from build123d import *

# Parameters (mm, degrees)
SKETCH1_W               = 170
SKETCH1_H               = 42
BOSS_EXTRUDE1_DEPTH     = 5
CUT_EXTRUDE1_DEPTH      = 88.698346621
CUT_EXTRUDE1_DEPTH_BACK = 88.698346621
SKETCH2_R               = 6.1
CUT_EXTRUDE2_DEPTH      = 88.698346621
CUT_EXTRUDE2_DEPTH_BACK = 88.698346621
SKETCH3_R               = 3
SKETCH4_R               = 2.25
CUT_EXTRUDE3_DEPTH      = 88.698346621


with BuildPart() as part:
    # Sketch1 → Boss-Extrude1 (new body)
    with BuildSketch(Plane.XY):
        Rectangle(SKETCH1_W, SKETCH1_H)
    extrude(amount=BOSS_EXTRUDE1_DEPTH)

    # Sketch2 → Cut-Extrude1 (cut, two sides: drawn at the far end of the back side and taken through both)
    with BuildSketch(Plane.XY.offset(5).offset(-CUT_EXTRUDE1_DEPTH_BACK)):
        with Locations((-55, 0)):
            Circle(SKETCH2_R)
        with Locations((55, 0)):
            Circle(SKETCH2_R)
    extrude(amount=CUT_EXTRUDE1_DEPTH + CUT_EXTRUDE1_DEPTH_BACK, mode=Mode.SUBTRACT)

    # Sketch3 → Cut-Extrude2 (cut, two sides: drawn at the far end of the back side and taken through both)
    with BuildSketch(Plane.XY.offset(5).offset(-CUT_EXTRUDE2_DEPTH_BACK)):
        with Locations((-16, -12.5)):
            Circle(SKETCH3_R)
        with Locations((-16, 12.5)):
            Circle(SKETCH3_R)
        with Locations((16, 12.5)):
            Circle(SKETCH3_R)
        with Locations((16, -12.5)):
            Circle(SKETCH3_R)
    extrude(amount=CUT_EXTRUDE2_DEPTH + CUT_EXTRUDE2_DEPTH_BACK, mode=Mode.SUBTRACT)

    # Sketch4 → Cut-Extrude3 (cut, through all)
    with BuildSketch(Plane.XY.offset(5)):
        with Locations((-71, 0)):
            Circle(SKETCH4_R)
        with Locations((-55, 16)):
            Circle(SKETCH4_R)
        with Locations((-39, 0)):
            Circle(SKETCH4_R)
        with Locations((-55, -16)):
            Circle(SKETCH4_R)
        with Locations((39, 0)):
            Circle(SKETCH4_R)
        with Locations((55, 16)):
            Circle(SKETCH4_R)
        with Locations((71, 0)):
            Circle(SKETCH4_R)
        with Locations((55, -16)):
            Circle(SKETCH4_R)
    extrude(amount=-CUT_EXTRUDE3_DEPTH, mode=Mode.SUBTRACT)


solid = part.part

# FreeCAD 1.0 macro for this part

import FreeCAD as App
import Part
import Sketcher
from FreeCAD import Vector

doc = App.newDocument("Part")
body = doc.addObject("PartDesign::Body", "Body")

# Sketch on XY plane
sketch1 = doc.addObject("Sketcher::SketchObject", "Sketch")
body.addObject(sketch1)
sketch1.AttachmentSupport = (doc.XY_Plane, [""])
sketch1.MapMode = "FlatFace"
sketch1.addGeometry(Part.LineSegment(Vector(-85, 21, 0), Vector(-85, -21, 0)), False)
sketch1.addGeometry(Part.LineSegment(Vector(-85, -21, 0), Vector(85, -21, 0)), False)
sketch1.addGeometry(Part.LineSegment(Vector(85, -21, 0), Vector(85, 21, 0)), False)
sketch1.addGeometry(Part.LineSegment(Vector(85, 21, 0), Vector(-85, 21, 0)), False)
sketch1.addConstraint(Sketcher.Constraint("Coincident", 0, 2, 1, 1))
sketch1.addConstraint(Sketcher.Constraint("Coincident", 1, 2, 2, 1))
sketch1.addConstraint(Sketcher.Constraint("Coincident", 2, 2, 3, 1))
sketch1.addConstraint(Sketcher.Constraint("Coincident", 3, 2, 0, 1))
sketch1.addConstraint(Sketcher.Constraint("Vertical", 0))
sketch1.addConstraint(Sketcher.Constraint("Horizontal", 1))
sketch1.addConstraint(Sketcher.Constraint("Vertical", 2))
sketch1.addConstraint(Sketcher.Constraint("Horizontal", 3))
sketch1.addConstraint(Sketcher.Constraint("Symmetric", 0, 2, 2, 2, -1, 1))
sketch1.addConstraint(Sketcher.Constraint("DistanceX", 1, 1, 1, 2, 170.0))
sketch1.addConstraint(Sketcher.Constraint("DistanceY", 0, 2, 0, 1, 42.0))
pad1 = doc.addObject("PartDesign::Pad", "Pad")
body.addObject(pad1)
pad1.Profile = sketch1
pad1.Length = 5

# Sketch on XY plane
sketch2 = doc.addObject("Sketcher::SketchObject", "Sketch001")
body.addObject(sketch2)
sketch2.AttachmentSupport = (doc.XY_Plane, [""])
sketch2.MapMode = "FlatFace"
sketch2.AttachmentOffset = App.Placement(Vector(0, 0, 5), App.Rotation())
sketch2.addGeometry(Part.Circle(Vector(-55, 0, 0), Vector(0, 0, 1), 6.1), False)
sketch2.addGeometry(Part.Circle(Vector(55, 0, 0), Vector(0, 0, 1), 6.1), False)
sketch2.addConstraint(Sketcher.Constraint("Equal", 0, 1))
sketch2.addConstraint(Sketcher.Constraint("Symmetric", 0, 3, 1, 3, -1, 1))
sketch2.addConstraint(Sketcher.Constraint("PointOnObject", 0, 3, -1))
sketch2.addConstraint(Sketcher.Constraint("Diameter", 0, 12.2))
sketch2.addConstraint(Sketcher.Constraint("DistanceX", 0, 3, -1, 1, 55.0))
pocket1 = doc.addObject("PartDesign::Pocket", "Pocket")
body.addObject(pocket1)
pocket1.Profile = sketch2
pocket1.Type = "ThroughAll"
pocket1.Midplane = True

# Sketch on XY plane
sketch3 = doc.addObject("Sketcher::SketchObject", "Sketch002")
body.addObject(sketch3)
sketch3.AttachmentSupport = (doc.XY_Plane, [""])
sketch3.MapMode = "FlatFace"
sketch3.AttachmentOffset = App.Placement(Vector(0, 0, 5), App.Rotation())
sketch3.addGeometry(Part.Circle(Vector(-16, -12.5, 0), Vector(0, 0, 1), 3), False)
sketch3.addGeometry(Part.Circle(Vector(-16, 12.5, 0), Vector(0, 0, 1), 3), False)
sketch3.addGeometry(Part.Circle(Vector(16, 12.5, 0), Vector(0, 0, 1), 3), False)
sketch3.addGeometry(Part.Circle(Vector(16, -12.5, 0), Vector(0, 0, 1), 3), False)
sketch3.addConstraint(Sketcher.Constraint("Equal", 0, 1))
sketch3.addConstraint(Sketcher.Constraint("Equal", 1, 2))
sketch3.addConstraint(Sketcher.Constraint("Equal", 2, 3))
sketch3.addConstraint(Sketcher.Constraint("Symmetric", 0, 3, 2, 3, -1, 1))
sketch3.addConstraint(Sketcher.Constraint("Symmetric", 1, 3, 3, 3, -1, 1))
sketch3.addConstraint(Sketcher.Constraint("Symmetric", 1, 3, 2, 3, -2))
sketch3.addConstraint(Sketcher.Constraint("Diameter", 0, 6.0))
sketch3.addConstraint(Sketcher.Constraint("DistanceX", 0, 3, -1, 1, 16.0))
sketch3.addConstraint(Sketcher.Constraint("DistanceY", 0, 3, 1, 3, 25.0))
pocket2 = doc.addObject("PartDesign::Pocket", "Pocket001")
body.addObject(pocket2)
pocket2.Profile = sketch3
pocket2.Type = "ThroughAll"
pocket2.Midplane = True

# Sketch on XY plane
sketch4 = doc.addObject("Sketcher::SketchObject", "Sketch003")
body.addObject(sketch4)
sketch4.AttachmentSupport = (doc.XY_Plane, [""])
sketch4.MapMode = "FlatFace"
sketch4.AttachmentOffset = App.Placement(Vector(0, 0, 5), App.Rotation())
sketch4.addGeometry(Part.Circle(Vector(-71, 0, 0), Vector(0, 0, 1), 2.25), False)
sketch4.addGeometry(Part.Circle(Vector(-55, 16, 0), Vector(0, 0, 1), 2.25), False)
sketch4.addGeometry(Part.Circle(Vector(-39, 0, 0), Vector(0, 0, 1), 2.25), False)
sketch4.addGeometry(Part.Circle(Vector(-55, -16, 0), Vector(0, 0, 1), 2.25), False)
sketch4.addGeometry(Part.Circle(Vector(39, 0, 0), Vector(0, 0, 1), 2.25), False)
sketch4.addGeometry(Part.Circle(Vector(55, 16, 0), Vector(0, 0, 1), 2.25), False)
sketch4.addGeometry(Part.Circle(Vector(71, 0, 0), Vector(0, 0, 1), 2.25), False)
sketch4.addGeometry(Part.Circle(Vector(55, -16, 0), Vector(0, 0, 1), 2.25), False)
sketch4.addConstraint(Sketcher.Constraint("Equal", 0, 1))
sketch4.addConstraint(Sketcher.Constraint("Equal", 1, 2))
sketch4.addConstraint(Sketcher.Constraint("Equal", 2, 3))
sketch4.addConstraint(Sketcher.Constraint("Equal", 3, 4))
sketch4.addConstraint(Sketcher.Constraint("Equal", 4, 5))
sketch4.addConstraint(Sketcher.Constraint("Equal", 5, 6))
sketch4.addConstraint(Sketcher.Constraint("Equal", 6, 7))
sketch4.addConstraint(Sketcher.Constraint("Symmetric", 2, 3, 4, 3, -1, 1))
sketch4.addConstraint(Sketcher.Constraint("Symmetric", 3, 3, 5, 3, -1, 1))
sketch4.addConstraint(Sketcher.Constraint("Symmetric", 0, 3, 6, 3, -1, 1))
sketch4.addConstraint(Sketcher.Constraint("Symmetric", 1, 3, 7, 3, -1, 1))
sketch4.addConstraint(Sketcher.Constraint("Symmetric", 1, 3, 5, 3, -2))
sketch4.addConstraint(Sketcher.Constraint("PointOnObject", 0, 3, -1))
sketch4.addConstraint(Sketcher.Constraint("PointOnObject", 2, 3, -1))
sketch4.addConstraint(Sketcher.Constraint("Diameter", 0, 4.5))
sketch4.addConstraint(Sketcher.Constraint("DistanceX", 0, 3, -1, 1, 71.0))
sketch4.addConstraint(Sketcher.Constraint("DistanceX", 1, 3, -1, 1, 55.0))
sketch4.addConstraint(Sketcher.Constraint("DistanceY", -1, 1, 1, 3, 16.0))
sketch4.addConstraint(Sketcher.Constraint("DistanceX", 2, 3, -1, 1, 39.0))
pocket3 = doc.addObject("PartDesign::Pocket", "Pocket002")
body.addObject(pocket3)
pocket3.Profile = sketch4
pocket3.Type = "ThroughAll"

doc.recompute()
